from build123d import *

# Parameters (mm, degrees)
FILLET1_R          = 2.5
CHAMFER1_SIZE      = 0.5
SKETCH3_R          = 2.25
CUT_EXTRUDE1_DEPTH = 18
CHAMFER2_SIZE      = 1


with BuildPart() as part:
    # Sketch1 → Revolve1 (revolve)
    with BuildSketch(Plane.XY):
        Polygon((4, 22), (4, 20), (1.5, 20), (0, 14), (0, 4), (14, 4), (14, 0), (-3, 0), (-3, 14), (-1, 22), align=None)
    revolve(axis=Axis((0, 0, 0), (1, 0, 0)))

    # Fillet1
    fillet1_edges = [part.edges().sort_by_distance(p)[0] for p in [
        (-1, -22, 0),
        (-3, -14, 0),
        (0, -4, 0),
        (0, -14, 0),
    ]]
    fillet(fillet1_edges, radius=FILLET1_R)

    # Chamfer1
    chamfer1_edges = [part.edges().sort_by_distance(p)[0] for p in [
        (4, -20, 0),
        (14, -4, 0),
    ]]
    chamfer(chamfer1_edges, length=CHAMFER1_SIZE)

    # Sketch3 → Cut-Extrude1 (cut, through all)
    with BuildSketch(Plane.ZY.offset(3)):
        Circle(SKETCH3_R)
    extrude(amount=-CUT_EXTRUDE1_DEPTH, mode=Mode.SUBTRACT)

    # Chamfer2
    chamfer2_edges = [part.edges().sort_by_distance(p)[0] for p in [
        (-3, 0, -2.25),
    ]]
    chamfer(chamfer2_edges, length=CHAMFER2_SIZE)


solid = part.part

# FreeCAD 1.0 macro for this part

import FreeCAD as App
import Part
import Sketcher

V = App.Vector


def edges_at(feature, points):
    """Names of the edges that pass closest to the given points."""
    edges = feature.Shape.Edges
    near = lambda p: min(range(len(edges)), key=lambda i: edges[i].distToShape(Part.Vertex(*p))[0])
    return sorted({f"Edge{near(p) + 1}" for p in points})

doc = App.newDocument("Part")
body = doc.addObject("PartDesign::Body", "Body")

sketch1 = body.newObject("Sketcher::SketchObject", "Sketch")
sketch1.AttachmentSupport = (doc.getObject("XY_Plane"), [""])
sketch1.MapMode = "FlatFace"
sketch1.addGeometry([
    Part.LineSegment(V(4, 20, 0), V(4, 22, 0)),
    Part.LineSegment(V(4, 22, 0), V(-1, 22, 0)),
    Part.LineSegment(V(-1, 22, 0), V(-3, 14, 0)),
    Part.LineSegment(V(-3, 14, 0), V(-3, 0, 0)),
    Part.LineSegment(V(-3, 0, 0), V(14, 0, 0)),
    Part.LineSegment(V(14, 0, 0), V(14, 4, 0)),
    Part.LineSegment(V(14, 4, 0), V(0, 4, 0)),
    Part.LineSegment(V(0, 4, 0), V(0, 14, 0)),
    Part.LineSegment(V(0, 14, 0), V(1.5, 20, 0)),
    Part.LineSegment(V(1.5, 20, 0), V(4, 20, 0)),
], False)
sketch1.addConstraint([
    Sketcher.Constraint("Coincident", 0, 2, 1, 1),
    Sketcher.Constraint("Coincident", 1, 2, 2, 1),
    Sketcher.Constraint("Coincident", 2, 2, 3, 1),
    Sketcher.Constraint("Coincident", 3, 2, 4, 1),
    Sketcher.Constraint("Coincident", 4, 2, 5, 1),
    Sketcher.Constraint("Coincident", 5, 2, 6, 1),
    Sketcher.Constraint("Coincident", 6, 2, 7, 1),
    Sketcher.Constraint("Coincident", 7, 2, 8, 1),
    Sketcher.Constraint("Coincident", 8, 2, 9, 1),
    Sketcher.Constraint("Coincident", 9, 2, 0, 1),
    Sketcher.Constraint("Vertical", 0),
    Sketcher.Constraint("Horizontal", 1),
    Sketcher.Constraint("Vertical", 3),
    Sketcher.Constraint("Horizontal", 4),
    Sketcher.Constraint("Vertical", 5),
    Sketcher.Constraint("Horizontal", 6),
    Sketcher.Constraint("Vertical", 7),
    Sketcher.Constraint("Horizontal", 9),
    Sketcher.Constraint("PointOnObject", 3, 2, -1),
    Sketcher.Constraint("PointOnObject", 6, 2, -2),
    Sketcher.Constraint("Parallel", 2, 8),
    Sketcher.Constraint("Horizontal", 2, 2, 7, 2),
    Sketcher.Constraint("Equal", 6, 3),
    Sketcher.Constraint("DistanceX", 1, 2, 1, 1, 5.0),
    Sketcher.Constraint("DistanceX", 4, 1, 4, 2, 17.0),
    Sketcher.Constraint("DistanceX", 6, 2, 6, 1, 14.0),
    Sketcher.Constraint("DistanceY", 0, 1, 0, 2, 2.0),
    Sketcher.Constraint("DistanceY", 5, 1, 5, 2, 4.0),
    Sketcher.Constraint("DistanceX", 9, 1, 9, 2, 2.5),
    Sketcher.Constraint("DistanceX", -1, 1, 0, 2, 4.0),
])
revolution = body.newObject("PartDesign::Revolution", "Revolution")
revolution.Profile = sketch1
revolution.ReferenceAxis = (sketch1, ["H_Axis"])
revolution.Angle = 360
doc.recompute()

fillet = body.newObject("PartDesign::Fillet", "Fillet")
fillet.Base = (revolution, edges_at(revolution, [
    (-1, -22, 0),
    (-3, -14, 0),
    (0, -4, 0),
    (0, -14, 0),
]))
fillet.Radius = 2.5
doc.recompute()

chamfer = body.newObject("PartDesign::Chamfer", "Chamfer")
chamfer.Base = (fillet, edges_at(fillet, [(4, -20, 0), (14, -4, 0)]))
chamfer.Size = 0.5

sketch2 = body.newObject("Sketcher::SketchObject", "Sketch001")
sketch2.AttachmentSupport = (doc.getObject("YZ_Plane"), [""])
sketch2.MapMode = "FlatFace"
sketch2.AttachmentOffset = App.Placement(V(0, 0, -3), App.Rotation())
sketch2.addGeometry(Part.Circle(V(0, 0, 0), V(0, 0, 1), 2.25), False)
sketch2.addConstraint([
    Sketcher.Constraint("Coincident", 0, 3, -1, 1),
    Sketcher.Constraint("Diameter", 0, 4.5),
])
pocket1 = body.newObject("PartDesign::Pocket", "Pocket")
pocket1.Profile = sketch2
pocket1.Type = "ThroughAll"
pocket1.Reversed = True
doc.recompute()

chamfer2 = body.newObject("PartDesign::Chamfer", "Chamfer001")
chamfer2.Base = (pocket1, edges_at(pocket1, [(-3, 0, -2.25)]))
chamfer2.Size = 1

doc.recompute()
